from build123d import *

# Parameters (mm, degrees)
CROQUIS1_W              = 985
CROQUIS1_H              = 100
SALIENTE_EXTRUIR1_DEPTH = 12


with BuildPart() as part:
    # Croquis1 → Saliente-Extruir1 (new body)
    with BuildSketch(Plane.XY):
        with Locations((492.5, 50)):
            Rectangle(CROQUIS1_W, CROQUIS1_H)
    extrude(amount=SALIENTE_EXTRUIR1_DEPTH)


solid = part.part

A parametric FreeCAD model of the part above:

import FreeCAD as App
import Part
import Sketcher

V = App.Vector
Q = App.Units.Quantity

doc = App.newDocument("Part")
body = doc.addObject("PartDesign::Body", "Body")

sketch1 = body.newObject("Sketcher::SketchObject", "Sketch")
sketch1.AttachmentSupport = (doc.getObject("XY_Plane"), [""])
sketch1.MapMode = "FlatFace"
sketch1.addGeometry([
    Part.LineSegment(V(0, 100, 0), V(0, 0, 0)),
    Part.LineSegment(V(0, 0, 0), V(985, 0, 0)),
    Part.LineSegment(V(985, 0, 0), V(985, 100, 0)),
    Part.LineSegment(V(985, 100, 0), V(0, 100, 0)),
], False)
sketch1.addConstraint([
    Sketcher.Constraint("Coincident", 0, 2, 1, 1),
    Sketcher.Constraint("Coincident", 1, 2, 2, 1),
    Sketcher.Constraint("Coincident", 2, 2, 3, 1),
    Sketcher.Constraint("Coincident", 3, 2, 0, 1),
    Sketcher.Constraint("Vertical", 0),
    Sketcher.Constraint("Horizontal", 1),
    Sketcher.Constraint("Vertical", 2),
    Sketcher.Constraint("Horizontal", 3),
    Sketcher.Constraint("Coincident", 0, 2, -1, 1),
    Sketcher.Constraint("DistanceX", 1, 1, 1, 2, Q("985 mm")),
    Sketcher.Constraint("DistanceY", 0, 2, 0, 1, Q("100 mm")),
])
pad1 = body.newObject("PartDesign::Pad", "Pad")
pad1.Profile = sketch1
pad1.Length = 12

doc.recompute()
